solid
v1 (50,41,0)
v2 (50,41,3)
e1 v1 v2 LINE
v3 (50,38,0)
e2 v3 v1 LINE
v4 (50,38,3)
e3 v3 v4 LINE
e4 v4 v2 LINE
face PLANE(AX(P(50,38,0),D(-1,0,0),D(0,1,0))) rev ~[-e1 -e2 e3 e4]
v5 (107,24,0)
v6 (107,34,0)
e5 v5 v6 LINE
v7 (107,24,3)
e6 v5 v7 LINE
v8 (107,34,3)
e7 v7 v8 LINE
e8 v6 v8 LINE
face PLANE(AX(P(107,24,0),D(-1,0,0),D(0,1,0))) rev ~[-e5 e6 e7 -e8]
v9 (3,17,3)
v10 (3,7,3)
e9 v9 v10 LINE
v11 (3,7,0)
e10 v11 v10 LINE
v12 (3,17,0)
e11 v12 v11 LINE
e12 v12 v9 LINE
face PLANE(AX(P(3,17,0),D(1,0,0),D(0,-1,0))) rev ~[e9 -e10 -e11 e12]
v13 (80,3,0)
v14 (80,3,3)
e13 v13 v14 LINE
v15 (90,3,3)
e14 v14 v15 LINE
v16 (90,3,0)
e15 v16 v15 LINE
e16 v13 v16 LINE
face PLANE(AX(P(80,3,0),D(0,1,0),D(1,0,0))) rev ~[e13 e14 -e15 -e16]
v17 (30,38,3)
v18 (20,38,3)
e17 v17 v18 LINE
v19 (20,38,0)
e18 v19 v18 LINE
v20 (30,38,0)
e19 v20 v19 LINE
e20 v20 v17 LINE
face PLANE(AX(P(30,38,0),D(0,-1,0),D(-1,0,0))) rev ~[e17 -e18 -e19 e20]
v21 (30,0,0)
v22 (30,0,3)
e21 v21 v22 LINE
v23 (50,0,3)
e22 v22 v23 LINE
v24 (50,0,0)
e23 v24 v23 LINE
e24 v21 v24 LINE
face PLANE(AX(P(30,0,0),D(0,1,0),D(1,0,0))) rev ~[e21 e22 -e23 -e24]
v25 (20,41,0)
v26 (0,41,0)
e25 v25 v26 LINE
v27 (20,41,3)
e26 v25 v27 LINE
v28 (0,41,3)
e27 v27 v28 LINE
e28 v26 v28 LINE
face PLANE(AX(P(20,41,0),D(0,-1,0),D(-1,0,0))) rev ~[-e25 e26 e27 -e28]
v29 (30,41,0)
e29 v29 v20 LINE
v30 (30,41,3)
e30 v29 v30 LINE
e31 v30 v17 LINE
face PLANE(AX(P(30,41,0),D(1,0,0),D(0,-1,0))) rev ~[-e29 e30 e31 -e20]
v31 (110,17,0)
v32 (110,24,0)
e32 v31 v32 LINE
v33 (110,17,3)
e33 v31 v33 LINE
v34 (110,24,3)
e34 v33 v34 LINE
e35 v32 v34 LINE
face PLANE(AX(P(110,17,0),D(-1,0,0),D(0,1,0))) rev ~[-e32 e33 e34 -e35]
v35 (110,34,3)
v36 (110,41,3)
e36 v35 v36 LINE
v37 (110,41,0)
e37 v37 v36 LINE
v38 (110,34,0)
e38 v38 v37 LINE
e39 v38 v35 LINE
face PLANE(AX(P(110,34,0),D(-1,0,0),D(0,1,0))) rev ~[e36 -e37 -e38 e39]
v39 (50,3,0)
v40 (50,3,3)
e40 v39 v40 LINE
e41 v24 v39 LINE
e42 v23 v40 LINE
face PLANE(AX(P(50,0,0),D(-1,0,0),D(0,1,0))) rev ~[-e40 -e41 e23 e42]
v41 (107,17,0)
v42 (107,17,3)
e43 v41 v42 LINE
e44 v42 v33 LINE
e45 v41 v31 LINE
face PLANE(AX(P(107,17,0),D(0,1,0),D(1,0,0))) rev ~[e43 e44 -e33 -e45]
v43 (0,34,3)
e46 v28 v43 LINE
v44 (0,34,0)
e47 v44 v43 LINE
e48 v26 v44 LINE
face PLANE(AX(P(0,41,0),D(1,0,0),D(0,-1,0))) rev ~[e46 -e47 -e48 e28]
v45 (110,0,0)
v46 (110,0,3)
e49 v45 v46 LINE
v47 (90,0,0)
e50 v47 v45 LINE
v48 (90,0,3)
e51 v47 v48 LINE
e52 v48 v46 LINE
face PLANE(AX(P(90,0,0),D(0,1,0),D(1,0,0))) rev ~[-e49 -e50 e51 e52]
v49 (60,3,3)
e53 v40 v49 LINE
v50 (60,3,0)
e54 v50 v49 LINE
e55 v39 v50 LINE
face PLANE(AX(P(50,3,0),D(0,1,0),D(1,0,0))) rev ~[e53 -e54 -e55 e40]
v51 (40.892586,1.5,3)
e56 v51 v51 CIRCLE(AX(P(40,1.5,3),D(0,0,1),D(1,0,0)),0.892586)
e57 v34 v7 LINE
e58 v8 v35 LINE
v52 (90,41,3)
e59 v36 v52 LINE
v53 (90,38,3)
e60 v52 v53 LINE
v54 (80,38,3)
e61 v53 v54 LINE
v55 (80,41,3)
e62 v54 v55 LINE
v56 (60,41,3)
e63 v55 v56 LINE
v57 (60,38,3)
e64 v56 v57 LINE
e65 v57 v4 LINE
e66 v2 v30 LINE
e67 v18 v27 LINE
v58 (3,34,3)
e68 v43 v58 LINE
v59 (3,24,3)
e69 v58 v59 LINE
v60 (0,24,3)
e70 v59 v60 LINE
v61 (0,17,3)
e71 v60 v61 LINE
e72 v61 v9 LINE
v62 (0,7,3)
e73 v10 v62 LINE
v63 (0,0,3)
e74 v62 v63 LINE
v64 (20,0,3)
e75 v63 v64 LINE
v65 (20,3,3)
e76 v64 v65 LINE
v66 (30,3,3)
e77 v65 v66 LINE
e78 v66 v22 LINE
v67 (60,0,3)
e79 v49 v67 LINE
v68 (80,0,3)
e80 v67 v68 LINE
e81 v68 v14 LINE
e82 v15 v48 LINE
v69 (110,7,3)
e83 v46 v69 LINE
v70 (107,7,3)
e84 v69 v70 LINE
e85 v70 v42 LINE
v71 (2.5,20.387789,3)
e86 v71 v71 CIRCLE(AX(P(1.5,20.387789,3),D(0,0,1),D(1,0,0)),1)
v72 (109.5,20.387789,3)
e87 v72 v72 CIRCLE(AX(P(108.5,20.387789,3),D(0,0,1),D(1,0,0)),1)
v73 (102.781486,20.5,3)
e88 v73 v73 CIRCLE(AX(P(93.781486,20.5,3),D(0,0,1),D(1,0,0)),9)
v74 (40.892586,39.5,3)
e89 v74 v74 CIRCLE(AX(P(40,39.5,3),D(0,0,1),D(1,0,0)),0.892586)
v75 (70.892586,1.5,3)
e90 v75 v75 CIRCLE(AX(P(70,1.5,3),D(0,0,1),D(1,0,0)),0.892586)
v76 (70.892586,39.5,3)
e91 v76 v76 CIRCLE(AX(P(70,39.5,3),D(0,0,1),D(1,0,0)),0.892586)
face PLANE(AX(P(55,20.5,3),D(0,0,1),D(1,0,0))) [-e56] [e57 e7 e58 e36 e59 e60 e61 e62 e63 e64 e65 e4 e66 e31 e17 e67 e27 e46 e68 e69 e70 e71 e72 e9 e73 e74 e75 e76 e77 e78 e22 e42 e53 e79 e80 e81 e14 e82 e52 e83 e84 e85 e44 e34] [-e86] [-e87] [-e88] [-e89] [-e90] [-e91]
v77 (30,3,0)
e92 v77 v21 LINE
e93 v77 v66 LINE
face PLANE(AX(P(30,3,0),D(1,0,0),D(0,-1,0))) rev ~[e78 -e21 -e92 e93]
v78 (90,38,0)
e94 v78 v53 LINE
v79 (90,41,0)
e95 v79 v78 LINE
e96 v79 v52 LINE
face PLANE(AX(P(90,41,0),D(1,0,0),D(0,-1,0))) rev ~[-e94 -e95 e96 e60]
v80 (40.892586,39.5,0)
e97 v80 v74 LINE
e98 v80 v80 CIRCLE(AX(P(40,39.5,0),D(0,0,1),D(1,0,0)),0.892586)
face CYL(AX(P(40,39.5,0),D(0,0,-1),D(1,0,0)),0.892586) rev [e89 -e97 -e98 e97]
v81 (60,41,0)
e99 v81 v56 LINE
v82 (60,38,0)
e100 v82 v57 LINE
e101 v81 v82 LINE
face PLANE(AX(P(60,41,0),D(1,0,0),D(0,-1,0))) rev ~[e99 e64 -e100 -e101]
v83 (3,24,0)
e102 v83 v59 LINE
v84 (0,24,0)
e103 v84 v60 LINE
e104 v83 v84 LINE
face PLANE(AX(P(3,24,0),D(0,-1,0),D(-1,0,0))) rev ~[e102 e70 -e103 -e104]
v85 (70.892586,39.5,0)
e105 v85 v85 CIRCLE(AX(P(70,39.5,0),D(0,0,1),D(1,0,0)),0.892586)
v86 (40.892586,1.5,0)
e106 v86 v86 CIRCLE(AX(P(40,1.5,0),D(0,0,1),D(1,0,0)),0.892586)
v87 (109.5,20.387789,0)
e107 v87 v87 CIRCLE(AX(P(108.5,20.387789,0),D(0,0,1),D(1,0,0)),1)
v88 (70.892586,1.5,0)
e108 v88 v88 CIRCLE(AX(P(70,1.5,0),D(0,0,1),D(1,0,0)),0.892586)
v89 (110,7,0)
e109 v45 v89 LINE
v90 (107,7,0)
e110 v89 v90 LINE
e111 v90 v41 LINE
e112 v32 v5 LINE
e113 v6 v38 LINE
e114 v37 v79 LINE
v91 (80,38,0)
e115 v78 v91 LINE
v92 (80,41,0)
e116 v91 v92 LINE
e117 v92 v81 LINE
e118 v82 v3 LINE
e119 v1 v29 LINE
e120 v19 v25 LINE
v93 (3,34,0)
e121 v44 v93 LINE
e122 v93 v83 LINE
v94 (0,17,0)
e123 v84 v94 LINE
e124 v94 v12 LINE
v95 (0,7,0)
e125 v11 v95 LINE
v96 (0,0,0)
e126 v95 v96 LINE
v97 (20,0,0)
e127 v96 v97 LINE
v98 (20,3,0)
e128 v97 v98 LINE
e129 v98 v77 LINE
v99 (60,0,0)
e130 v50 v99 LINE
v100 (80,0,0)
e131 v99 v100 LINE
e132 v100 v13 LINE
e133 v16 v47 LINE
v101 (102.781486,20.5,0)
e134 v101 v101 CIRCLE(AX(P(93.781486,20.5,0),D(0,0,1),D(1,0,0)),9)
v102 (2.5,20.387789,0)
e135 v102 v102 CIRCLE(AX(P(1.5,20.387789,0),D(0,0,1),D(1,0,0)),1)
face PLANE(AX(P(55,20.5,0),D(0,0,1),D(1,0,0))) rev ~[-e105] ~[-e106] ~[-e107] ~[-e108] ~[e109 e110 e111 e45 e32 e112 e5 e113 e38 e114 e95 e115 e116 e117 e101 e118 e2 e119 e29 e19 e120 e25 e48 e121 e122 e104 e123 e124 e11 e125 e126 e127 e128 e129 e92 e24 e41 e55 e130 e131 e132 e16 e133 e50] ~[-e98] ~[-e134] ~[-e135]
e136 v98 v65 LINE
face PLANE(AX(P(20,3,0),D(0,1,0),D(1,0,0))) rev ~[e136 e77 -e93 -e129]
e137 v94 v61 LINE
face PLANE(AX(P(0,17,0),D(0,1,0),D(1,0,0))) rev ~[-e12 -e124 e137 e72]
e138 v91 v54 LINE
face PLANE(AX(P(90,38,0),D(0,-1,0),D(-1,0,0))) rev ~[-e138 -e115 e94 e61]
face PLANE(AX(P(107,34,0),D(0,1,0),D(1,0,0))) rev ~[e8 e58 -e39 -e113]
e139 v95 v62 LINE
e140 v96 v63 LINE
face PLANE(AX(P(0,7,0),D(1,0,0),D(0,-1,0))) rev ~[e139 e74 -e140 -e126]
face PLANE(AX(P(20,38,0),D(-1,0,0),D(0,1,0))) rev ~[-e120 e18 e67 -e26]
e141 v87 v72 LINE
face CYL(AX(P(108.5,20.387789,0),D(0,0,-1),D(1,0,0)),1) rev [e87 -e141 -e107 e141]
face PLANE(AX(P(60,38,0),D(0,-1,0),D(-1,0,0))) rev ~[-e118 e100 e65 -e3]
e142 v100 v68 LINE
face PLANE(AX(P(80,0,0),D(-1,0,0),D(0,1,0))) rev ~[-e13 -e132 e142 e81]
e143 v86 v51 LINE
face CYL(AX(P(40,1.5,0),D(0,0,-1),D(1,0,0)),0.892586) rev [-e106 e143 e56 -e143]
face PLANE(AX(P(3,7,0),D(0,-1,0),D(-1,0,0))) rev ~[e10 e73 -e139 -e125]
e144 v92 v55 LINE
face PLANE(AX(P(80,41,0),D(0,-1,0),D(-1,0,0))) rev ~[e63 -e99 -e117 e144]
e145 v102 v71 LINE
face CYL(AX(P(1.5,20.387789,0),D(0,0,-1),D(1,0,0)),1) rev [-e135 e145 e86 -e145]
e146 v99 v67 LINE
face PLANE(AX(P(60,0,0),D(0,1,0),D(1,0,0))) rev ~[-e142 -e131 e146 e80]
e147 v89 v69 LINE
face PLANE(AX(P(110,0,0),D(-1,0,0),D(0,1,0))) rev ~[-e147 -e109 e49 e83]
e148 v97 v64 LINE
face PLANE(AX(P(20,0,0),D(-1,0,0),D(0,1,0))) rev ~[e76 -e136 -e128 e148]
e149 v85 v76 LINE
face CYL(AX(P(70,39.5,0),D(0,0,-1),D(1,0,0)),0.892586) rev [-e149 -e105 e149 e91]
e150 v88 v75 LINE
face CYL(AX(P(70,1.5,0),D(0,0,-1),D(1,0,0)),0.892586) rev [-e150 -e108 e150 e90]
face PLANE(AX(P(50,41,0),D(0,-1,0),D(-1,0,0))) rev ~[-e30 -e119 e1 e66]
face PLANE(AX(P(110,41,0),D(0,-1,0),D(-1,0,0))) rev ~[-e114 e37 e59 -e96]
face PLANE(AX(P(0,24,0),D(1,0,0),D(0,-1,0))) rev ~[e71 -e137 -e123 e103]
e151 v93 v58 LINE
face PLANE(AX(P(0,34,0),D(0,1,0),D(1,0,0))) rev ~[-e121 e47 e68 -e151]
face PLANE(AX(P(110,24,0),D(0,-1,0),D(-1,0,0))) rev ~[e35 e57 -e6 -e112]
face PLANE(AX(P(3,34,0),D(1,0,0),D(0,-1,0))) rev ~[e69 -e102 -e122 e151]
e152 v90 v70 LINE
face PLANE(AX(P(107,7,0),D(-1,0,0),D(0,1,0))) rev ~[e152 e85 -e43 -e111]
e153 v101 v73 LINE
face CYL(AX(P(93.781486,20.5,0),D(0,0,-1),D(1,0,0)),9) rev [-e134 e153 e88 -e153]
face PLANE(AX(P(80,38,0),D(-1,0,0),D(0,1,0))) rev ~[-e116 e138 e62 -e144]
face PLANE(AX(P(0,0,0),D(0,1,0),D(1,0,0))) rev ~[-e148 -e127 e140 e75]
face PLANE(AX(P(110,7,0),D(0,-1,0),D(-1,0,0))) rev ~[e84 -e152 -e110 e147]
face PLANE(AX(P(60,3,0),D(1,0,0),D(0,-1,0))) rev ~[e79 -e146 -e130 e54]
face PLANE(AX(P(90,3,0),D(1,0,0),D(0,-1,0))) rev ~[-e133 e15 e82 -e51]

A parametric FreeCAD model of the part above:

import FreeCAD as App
import Part
import Sketcher
from FreeCAD import Vector
Q = App.Units.Quantity

doc = App.newDocument("Part")
body = doc.addObject("PartDesign::Body", "Body")

sketch1 = doc.addObject("Sketcher::SketchObject", "Sketch")
body.addObject(sketch1)
sketch1.AttachmentSupport = (doc.XY_Plane, [""])
sketch1.MapMode = "FlatFace"
sketch1.addGeometry([
    Part.LineSegment(Vector(0, 7, 0), Vector(0, 0, 0)),
    Part.LineSegment(Vector(0, 0, 0), Vector(20, 0, 0)),
    Part.LineSegment(Vector(20, 0, 0), Vector(20, 3, 0)),
    Part.LineSegment(Vector(20, 3, 0), Vector(30, 3, 0)),
    Part.LineSegment(Vector(30, 3, 0), Vector(30, 0, 0)),
    Part.LineSegment(Vector(30, 0, 0), Vector(50, 0, 0)),
    Part.LineSegment(Vector(50, 0, 0), Vector(50, 3, 0)),
    Part.LineSegment(Vector(50, 3, 0), Vector(60, 3, 0)),
    Part.LineSegment(Vector(60, 3, 0), Vector(60, 0, 0)),
    Part.LineSegment(Vector(60, 0, 0), Vector(80, 0, 0)),
    Part.LineSegment(Vector(80, 0, 0), Vector(80, 3, 0)),
    Part.LineSegment(Vector(80, 3, 0), Vector(90, 3, 0)),
    Part.LineSegment(Vector(90, 3, 0), Vector(90, 0, 0)),
    Part.LineSegment(Vector(90, 0, 0), Vector(110, 0, 0)),
    Part.LineSegment(Vector(110, 0, 0), Vector(110, 7, 0)),
    Part.LineSegment(Vector(110, 7, 0), Vector(107, 7, 0)),
    Part.LineSegment(Vector(107, 7, 0), Vector(107, 17, 0)),
    Part.LineSegment(Vector(107, 17, 0), Vector(110, 17, 0)),
    Part.LineSegment(Vector(110, 17, 0), Vector(110, 24, 0)),
    Part.LineSegment(Vector(110, 24, 0), Vector(107, 24, 0)),
    Part.LineSegment(Vector(107, 24, 0), Vector(107, 34, 0)),
    Part.LineSegment(Vector(107, 34, 0), Vector(110, 34, 0)),
    Part.LineSegment(Vector(110, 34, 0), Vector(110, 41, 0)),
    Part.LineSegment(Vector(110, 41, 0), Vector(90, 41, 0)),
    Part.LineSegment(Vector(90, 41, 0), Vector(90, 38, 0)),
    Part.LineSegment(Vector(90, 38, 0), Vector(80, 38, 0)),
    Part.LineSegment(Vector(80, 38, 0), Vector(80, 41, 0)),
    Part.LineSegment(Vector(80, 41, 0), Vector(60, 41, 0)),
    Part.LineSegment(Vector(60, 41, 0), Vector(60, 38, 0)),
    Part.LineSegment(Vector(60, 38, 0), Vector(50, 38, 0)),
    Part.LineSegment(Vector(50, 38, 0), Vector(50, 41, 0)),
    Part.LineSegment(Vector(50, 41, 0), Vector(30, 41, 0)),
    Part.LineSegment(Vector(30, 41, 0), Vector(30, 38, 0)),
    Part.LineSegment(Vector(30, 38, 0), Vector(20, 38, 0)),
    Part.LineSegment(Vector(20, 38, 0), Vector(20, 41, 0)),
    Part.LineSegment(Vector(20, 41, 0), Vector(0, 41, 0)),
    Part.LineSegment(Vector(0, 41, 0), Vector(0, 34, 0)),
    Part.LineSegment(Vector(0, 34, 0), Vector(3, 34, 0)),
    Part.LineSegment(Vector(3, 34, 0), Vector(3, 24, 0)),
    Part.LineSegment(Vector(3, 24, 0), Vector(0, 24, 0)),
    Part.LineSegment(Vector(0, 24, 0), Vector(0, 17, 0)),
    Part.LineSegment(Vector(0, 17, 0), Vector(3, 17, 0)),
    Part.LineSegment(Vector(3, 17, 0), Vector(3, 7, 0)),
    Part.LineSegment(Vector(3, 7, 0), Vector(0, 7, 0)),
    Part.Circle(Vector(40, 1.5, 0), Vector(0, 0, 1), 0.9),
    Part.Circle(Vector(1.5, 20.4, 0), Vector(0, 0, 1), 1),
    Part.Circle(Vector(70, 1.5, 0), Vector(0, 0, 1), 0.9),
    Part.Circle(Vector(108.5, 20.4, 0), Vector(0, 0, 1), 1),
    Part.Circle(Vector(40, 39.5, 0), Vector(0, 0, 1), 0.9),
    Part.Circle(Vector(93.8, 20.5, 0), Vector(0, 0, 1), 9),
    Part.Circle(Vector(70, 39.5, 0), Vector(0, 0, 1), 0.9),
], False)
sketch1.addConstraint([
    Sketcher.Constraint("Coincident", 0, 2, 1, 1),
    Sketcher.Constraint("Coincident", 1, 2, 2, 1),
    Sketcher.Constraint("Coincident", 2, 2, 3, 1),
    Sketcher.Constraint("Coincident", 3, 2, 4, 1),
    Sketcher.Constraint("Coincident", 4, 2, 5, 1),
    Sketcher.Constraint("Coincident", 5, 2, 6, 1),
    Sketcher.Constraint("Coincident", 6, 2, 7, 1),
    Sketcher.Constraint("Coincident", 7, 2, 8, 1),
    Sketcher.Constraint("Coincident", 8, 2, 9, 1),
    Sketcher.Constraint("Coincident", 9, 2, 10, 1),
    Sketcher.Constraint("Coincident", 10, 2, 11, 1),
    Sketcher.Constraint("Coincident", 11, 2, 12, 1),
    Sketcher.Constraint("Coincident", 12, 2, 13, 1),
    Sketcher.Constraint("Coincident", 13, 2, 14, 1),
    Sketcher.Constraint("Coincident", 14, 2, 15, 1),
    Sketcher.Constraint("Coincident", 15, 2, 16, 1),
    Sketcher.Constraint("Coincident", 16, 2, 17, 1),
    Sketcher.Constraint("Coincident", 17, 2, 18, 1),
    Sketcher.Constraint("Coincident", 18, 2, 19, 1),
    Sketcher.Constraint("Coincident", 19, 2, 20, 1),
    Sketcher.Constraint("Coincident", 20, 2, 21, 1),
    Sketcher.Constraint("Coincident", 21, 2, 22, 1),
    Sketcher.Constraint("Coincident", 22, 2, 23, 1),
    Sketcher.Constraint("Coincident", 23, 2, 24, 1),
    Sketcher.Constraint("Coincident", 24, 2, 25, 1),
    Sketcher.Constraint("Coincident", 25, 2, 26, 1),
    Sketcher.Constraint("Coincident", 26, 2, 27, 1),
    Sketcher.Constraint("Coincident", 27, 2, 28, 1),
    Sketcher.Constraint("Coincident", 28, 2, 29, 1),
    Sketcher.Constraint("Coincident", 29, 2, 30, 1),
    Sketcher.Constraint("Coincident", 30, 2, 31, 1),
    Sketcher.Constraint("Coincident", 31, 2, 32, 1),
    Sketcher.Constraint("Coincident", 32, 2, 33, 1),
    Sketcher.Constraint("Coincident", 33, 2, 34, 1),
    Sketcher.Constraint("Coincident", 34, 2, 35, 1),
    Sketcher.Constraint("Coincident", 35, 2, 36, 1),
    Sketcher.Constraint("Coincident", 36, 2, 37, 1),
    Sketcher.Constraint("Coincident", 37, 2, 38, 1),
    Sketcher.Constraint("Coincident", 38, 2, 39, 1),
    Sketcher.Constraint("Coincident", 39, 2, 40, 1),
    Sketcher.Constraint("Coincident", 40, 2, 41, 1),
    Sketcher.Constraint("Coincident", 41, 2, 42, 1),
    Sketcher.Constraint("Coincident", 42, 2, 43, 1),
    Sketcher.Constraint("Coincident", 43, 2, 0, 1),
    Sketcher.Constraint("Vertical", 0),
    Sketcher.Constraint("Horizontal", 1),
    Sketcher.Constraint("Vertical", 2),
    Sketcher.Constraint("Horizontal", 3),
    Sketcher.Constraint("Vertical", 4),
    Sketcher.Constraint("Horizontal", 5),
    Sketcher.Constraint("Vertical", 6),
    Sketcher.Constraint("Horizontal", 7),
    Sketcher.Constraint("Vertical", 8),
    Sketcher.Constraint("Horizontal", 9),
    Sketcher.Constraint("Vertical", 10),
    Sketcher.Constraint("Horizontal", 11),
    Sketcher.Constraint("Vertical", 12),
    Sketcher.Constraint("Horizontal", 13),
    Sketcher.Constraint("Vertical", 14),
    Sketcher.Constraint("Horizontal", 15),
    Sketcher.Constraint("Vertical", 16),
    Sketcher.Constraint("Horizontal", 17),
    Sketcher.Constraint("Vertical", 18),
    Sketcher.Constraint("Horizontal", 19),
    Sketcher.Constraint("Vertical", 20),
    Sketcher.Constraint("Horizontal", 21),
    Sketcher.Constraint("Vertical", 22),
    Sketcher.Constraint("Horizontal", 23),
    Sketcher.Constraint("Vertical", 24),
    Sketcher.Constraint("Horizontal", 25),
    Sketcher.Constraint("Vertical", 26),
    Sketcher.Constraint("Horizontal", 27),
    Sketcher.Constraint("Vertical", 28),
    Sketcher.Constraint("Horizontal", 29),
    Sketcher.Constraint("Vertical", 30),
    Sketcher.Constraint("Horizontal", 31),
    Sketcher.Constraint("Vertical", 32),
    Sketcher.Constraint("Horizontal", 33),
    Sketcher.Constraint("Vertical", 34),
    Sketcher.Constraint("Horizontal", 35),
    Sketcher.Constraint("Vertical", 36),
    Sketcher.Constraint("Horizontal", 37),
    Sketcher.Constraint("Vertical", 38),
    Sketcher.Constraint("Horizontal", 39),
    Sketcher.Constraint("Vertical", 40),
    Sketcher.Constraint("Horizontal", 41),
    Sketcher.Constraint("Vertical", 42),
    Sketcher.Constraint("Horizontal", 43),
    Sketcher.Constraint("Coincident", 0, 2, -1, 1),
    Sketcher.Constraint("Equal", 44, 46),
    Sketcher.Constraint("Equal", 45, 47),
    Sketcher.Constraint("Equal", 46, 48),
    Sketcher.Constraint("Equal", 48, 50),
    Sketcher.Constraint("PointOnObject", 4, 2, -1),
    Sketcher.Constraint("PointOnObject", 8, 2, -1),
    Sketcher.Constraint("PointOnObject", 12, 2, -1),
    Sketcher.Constraint("PointOnObject", 35, 2, -2),
    Sketcher.Constraint("PointOnObject", 39, 2, -2),
    Sketcher.Constraint("Horizontal", 44, 3, 46, 3),
    Sketcher.Constraint("Horizontal", 45, 3, 47, 3),
    Sketcher.Constraint("Horizontal", 48, 3, 50, 3),
    Sketcher.Constraint("Horizontal", 3, 2, 6, 2),
    Sketcher.Constraint("Horizontal", 7, 2, 10, 2),
    Sketcher.Constraint("Horizontal", 23, 2, 26, 2),
    Sketcher.Constraint("Horizontal", 25, 2, 28, 2),
    Sketcher.Constraint("Horizontal", 27, 2, 30, 2),
    Sketcher.Constraint("Horizontal", 29, 2, 32, 2),
    Sketcher.Constraint("Horizontal", 31, 2, 34, 2),
    Sketcher.Constraint("Horizontal", 21, 2, 36, 2),
    Sketcher.Constraint("Horizontal", 19, 2, 38, 2),
    Sketcher.Constraint("Horizontal", 17, 2, 40, 2),
    Sketcher.Constraint("Horizontal", 15, 2, 42, 2),
    Sketcher.Constraint("Vertical", 44, 3, 48, 3),
    Sketcher.Constraint("Vertical", 46, 3, 50, 3),
    Sketcher.Constraint("Vertical", 14, 2, 17, 2),
    Sketcher.Constraint("Vertical", 16, 2, 19, 2),
    Sketcher.Constraint("Vertical", 18, 2, 21, 2),
    Sketcher.Constraint("Vertical", 12, 2, 23, 2),
    Sketcher.Constraint("Vertical", 10, 2, 25, 2),
    Sketcher.Constraint("Vertical", 8, 2, 27, 2),
    Sketcher.Constraint("Vertical", 6, 2, 29, 2),
    Sketcher.Constraint("Vertical", 4, 2, 31, 2),
    Sketcher.Constraint("Vertical", 2, 2, 33, 2),
    Sketcher.Constraint("Vertical", 38, 2, 41, 2),
    Sketcher.Constraint("Equal", 1, 5),
    Sketcher.Constraint("Equal", 3, 7),
    Sketcher.Constraint("Equal", 5, 9),
    Sketcher.Constraint("Equal", 7, 11),
    Sketcher.Constraint("Equal", 9, 13),
    Sketcher.Constraint("Equal", 21, 37),
    Sketcher.Constraint("Equal", 43, 2),
    Sketcher.Constraint("Equal", 33, 16),
    Sketcher.Constraint("Equal", 14, 18),
    Sketcher.Constraint("Equal", 16, 20),
    Sketcher.Constraint("Equal", 18, 22),
    Sketcher.Constraint("Equal", 12, 24),
    Sketcher.Constraint("Diameter", 45, Q("2 mm")),
    Sketcher.Constraint("Diameter", 49, Q("18 mm")),
    Sketcher.Constraint("DistanceX", 1, 1, 1, 2, Q("20 mm")),
    Sketcher.Constraint("DistanceX", 3, 1, 3, 2, Q("10 mm")),
    Sketcher.Constraint("DistanceX", 15, 2, 15, 1, Q("3 mm")),
    Sketcher.Constraint("DistanceY", 0, 2, 0, 1, Q("7 mm")),
    Sketcher.Constraint("DistanceX", -1, 1, 44, 3, Q("40 mm")),
    Sketcher.Constraint("DistanceX", -1, 1, 46, 3, Q("70 mm")),
    Sketcher.Constraint("DistanceX", 45, 3, 47, 3, Q("107 mm")),
    Sketcher.Constraint("DistanceY", 44, 3, 48, 3, Q("38 mm")),
    Sketcher.Constraint("DistanceY", 46, 3, 49, 3, Q("19 mm")),
    Sketcher.Constraint("DistanceY", -1, 1, 44, 3, Q("1.5 mm")),
    Sketcher.Constraint("DistanceX", -1, 1, 45, 3, Q("1.5 mm")),
    Sketcher.Constraint("Diameter", 44, Q("1.785172 mm")),
    Sketcher.Constraint("DistanceY", -1, 1, 45, 3, Q("20.387789 mm")),
    Sketcher.Constraint("DistanceX", -1, 1, 49, 3, Q("93.781486 mm")),
])
pad1 = doc.addObject("PartDesign::Pad", "Pad")
body.addObject(pad1)
pad1.Profile = sketch1
pad1.Length = 3

doc.recompute()
